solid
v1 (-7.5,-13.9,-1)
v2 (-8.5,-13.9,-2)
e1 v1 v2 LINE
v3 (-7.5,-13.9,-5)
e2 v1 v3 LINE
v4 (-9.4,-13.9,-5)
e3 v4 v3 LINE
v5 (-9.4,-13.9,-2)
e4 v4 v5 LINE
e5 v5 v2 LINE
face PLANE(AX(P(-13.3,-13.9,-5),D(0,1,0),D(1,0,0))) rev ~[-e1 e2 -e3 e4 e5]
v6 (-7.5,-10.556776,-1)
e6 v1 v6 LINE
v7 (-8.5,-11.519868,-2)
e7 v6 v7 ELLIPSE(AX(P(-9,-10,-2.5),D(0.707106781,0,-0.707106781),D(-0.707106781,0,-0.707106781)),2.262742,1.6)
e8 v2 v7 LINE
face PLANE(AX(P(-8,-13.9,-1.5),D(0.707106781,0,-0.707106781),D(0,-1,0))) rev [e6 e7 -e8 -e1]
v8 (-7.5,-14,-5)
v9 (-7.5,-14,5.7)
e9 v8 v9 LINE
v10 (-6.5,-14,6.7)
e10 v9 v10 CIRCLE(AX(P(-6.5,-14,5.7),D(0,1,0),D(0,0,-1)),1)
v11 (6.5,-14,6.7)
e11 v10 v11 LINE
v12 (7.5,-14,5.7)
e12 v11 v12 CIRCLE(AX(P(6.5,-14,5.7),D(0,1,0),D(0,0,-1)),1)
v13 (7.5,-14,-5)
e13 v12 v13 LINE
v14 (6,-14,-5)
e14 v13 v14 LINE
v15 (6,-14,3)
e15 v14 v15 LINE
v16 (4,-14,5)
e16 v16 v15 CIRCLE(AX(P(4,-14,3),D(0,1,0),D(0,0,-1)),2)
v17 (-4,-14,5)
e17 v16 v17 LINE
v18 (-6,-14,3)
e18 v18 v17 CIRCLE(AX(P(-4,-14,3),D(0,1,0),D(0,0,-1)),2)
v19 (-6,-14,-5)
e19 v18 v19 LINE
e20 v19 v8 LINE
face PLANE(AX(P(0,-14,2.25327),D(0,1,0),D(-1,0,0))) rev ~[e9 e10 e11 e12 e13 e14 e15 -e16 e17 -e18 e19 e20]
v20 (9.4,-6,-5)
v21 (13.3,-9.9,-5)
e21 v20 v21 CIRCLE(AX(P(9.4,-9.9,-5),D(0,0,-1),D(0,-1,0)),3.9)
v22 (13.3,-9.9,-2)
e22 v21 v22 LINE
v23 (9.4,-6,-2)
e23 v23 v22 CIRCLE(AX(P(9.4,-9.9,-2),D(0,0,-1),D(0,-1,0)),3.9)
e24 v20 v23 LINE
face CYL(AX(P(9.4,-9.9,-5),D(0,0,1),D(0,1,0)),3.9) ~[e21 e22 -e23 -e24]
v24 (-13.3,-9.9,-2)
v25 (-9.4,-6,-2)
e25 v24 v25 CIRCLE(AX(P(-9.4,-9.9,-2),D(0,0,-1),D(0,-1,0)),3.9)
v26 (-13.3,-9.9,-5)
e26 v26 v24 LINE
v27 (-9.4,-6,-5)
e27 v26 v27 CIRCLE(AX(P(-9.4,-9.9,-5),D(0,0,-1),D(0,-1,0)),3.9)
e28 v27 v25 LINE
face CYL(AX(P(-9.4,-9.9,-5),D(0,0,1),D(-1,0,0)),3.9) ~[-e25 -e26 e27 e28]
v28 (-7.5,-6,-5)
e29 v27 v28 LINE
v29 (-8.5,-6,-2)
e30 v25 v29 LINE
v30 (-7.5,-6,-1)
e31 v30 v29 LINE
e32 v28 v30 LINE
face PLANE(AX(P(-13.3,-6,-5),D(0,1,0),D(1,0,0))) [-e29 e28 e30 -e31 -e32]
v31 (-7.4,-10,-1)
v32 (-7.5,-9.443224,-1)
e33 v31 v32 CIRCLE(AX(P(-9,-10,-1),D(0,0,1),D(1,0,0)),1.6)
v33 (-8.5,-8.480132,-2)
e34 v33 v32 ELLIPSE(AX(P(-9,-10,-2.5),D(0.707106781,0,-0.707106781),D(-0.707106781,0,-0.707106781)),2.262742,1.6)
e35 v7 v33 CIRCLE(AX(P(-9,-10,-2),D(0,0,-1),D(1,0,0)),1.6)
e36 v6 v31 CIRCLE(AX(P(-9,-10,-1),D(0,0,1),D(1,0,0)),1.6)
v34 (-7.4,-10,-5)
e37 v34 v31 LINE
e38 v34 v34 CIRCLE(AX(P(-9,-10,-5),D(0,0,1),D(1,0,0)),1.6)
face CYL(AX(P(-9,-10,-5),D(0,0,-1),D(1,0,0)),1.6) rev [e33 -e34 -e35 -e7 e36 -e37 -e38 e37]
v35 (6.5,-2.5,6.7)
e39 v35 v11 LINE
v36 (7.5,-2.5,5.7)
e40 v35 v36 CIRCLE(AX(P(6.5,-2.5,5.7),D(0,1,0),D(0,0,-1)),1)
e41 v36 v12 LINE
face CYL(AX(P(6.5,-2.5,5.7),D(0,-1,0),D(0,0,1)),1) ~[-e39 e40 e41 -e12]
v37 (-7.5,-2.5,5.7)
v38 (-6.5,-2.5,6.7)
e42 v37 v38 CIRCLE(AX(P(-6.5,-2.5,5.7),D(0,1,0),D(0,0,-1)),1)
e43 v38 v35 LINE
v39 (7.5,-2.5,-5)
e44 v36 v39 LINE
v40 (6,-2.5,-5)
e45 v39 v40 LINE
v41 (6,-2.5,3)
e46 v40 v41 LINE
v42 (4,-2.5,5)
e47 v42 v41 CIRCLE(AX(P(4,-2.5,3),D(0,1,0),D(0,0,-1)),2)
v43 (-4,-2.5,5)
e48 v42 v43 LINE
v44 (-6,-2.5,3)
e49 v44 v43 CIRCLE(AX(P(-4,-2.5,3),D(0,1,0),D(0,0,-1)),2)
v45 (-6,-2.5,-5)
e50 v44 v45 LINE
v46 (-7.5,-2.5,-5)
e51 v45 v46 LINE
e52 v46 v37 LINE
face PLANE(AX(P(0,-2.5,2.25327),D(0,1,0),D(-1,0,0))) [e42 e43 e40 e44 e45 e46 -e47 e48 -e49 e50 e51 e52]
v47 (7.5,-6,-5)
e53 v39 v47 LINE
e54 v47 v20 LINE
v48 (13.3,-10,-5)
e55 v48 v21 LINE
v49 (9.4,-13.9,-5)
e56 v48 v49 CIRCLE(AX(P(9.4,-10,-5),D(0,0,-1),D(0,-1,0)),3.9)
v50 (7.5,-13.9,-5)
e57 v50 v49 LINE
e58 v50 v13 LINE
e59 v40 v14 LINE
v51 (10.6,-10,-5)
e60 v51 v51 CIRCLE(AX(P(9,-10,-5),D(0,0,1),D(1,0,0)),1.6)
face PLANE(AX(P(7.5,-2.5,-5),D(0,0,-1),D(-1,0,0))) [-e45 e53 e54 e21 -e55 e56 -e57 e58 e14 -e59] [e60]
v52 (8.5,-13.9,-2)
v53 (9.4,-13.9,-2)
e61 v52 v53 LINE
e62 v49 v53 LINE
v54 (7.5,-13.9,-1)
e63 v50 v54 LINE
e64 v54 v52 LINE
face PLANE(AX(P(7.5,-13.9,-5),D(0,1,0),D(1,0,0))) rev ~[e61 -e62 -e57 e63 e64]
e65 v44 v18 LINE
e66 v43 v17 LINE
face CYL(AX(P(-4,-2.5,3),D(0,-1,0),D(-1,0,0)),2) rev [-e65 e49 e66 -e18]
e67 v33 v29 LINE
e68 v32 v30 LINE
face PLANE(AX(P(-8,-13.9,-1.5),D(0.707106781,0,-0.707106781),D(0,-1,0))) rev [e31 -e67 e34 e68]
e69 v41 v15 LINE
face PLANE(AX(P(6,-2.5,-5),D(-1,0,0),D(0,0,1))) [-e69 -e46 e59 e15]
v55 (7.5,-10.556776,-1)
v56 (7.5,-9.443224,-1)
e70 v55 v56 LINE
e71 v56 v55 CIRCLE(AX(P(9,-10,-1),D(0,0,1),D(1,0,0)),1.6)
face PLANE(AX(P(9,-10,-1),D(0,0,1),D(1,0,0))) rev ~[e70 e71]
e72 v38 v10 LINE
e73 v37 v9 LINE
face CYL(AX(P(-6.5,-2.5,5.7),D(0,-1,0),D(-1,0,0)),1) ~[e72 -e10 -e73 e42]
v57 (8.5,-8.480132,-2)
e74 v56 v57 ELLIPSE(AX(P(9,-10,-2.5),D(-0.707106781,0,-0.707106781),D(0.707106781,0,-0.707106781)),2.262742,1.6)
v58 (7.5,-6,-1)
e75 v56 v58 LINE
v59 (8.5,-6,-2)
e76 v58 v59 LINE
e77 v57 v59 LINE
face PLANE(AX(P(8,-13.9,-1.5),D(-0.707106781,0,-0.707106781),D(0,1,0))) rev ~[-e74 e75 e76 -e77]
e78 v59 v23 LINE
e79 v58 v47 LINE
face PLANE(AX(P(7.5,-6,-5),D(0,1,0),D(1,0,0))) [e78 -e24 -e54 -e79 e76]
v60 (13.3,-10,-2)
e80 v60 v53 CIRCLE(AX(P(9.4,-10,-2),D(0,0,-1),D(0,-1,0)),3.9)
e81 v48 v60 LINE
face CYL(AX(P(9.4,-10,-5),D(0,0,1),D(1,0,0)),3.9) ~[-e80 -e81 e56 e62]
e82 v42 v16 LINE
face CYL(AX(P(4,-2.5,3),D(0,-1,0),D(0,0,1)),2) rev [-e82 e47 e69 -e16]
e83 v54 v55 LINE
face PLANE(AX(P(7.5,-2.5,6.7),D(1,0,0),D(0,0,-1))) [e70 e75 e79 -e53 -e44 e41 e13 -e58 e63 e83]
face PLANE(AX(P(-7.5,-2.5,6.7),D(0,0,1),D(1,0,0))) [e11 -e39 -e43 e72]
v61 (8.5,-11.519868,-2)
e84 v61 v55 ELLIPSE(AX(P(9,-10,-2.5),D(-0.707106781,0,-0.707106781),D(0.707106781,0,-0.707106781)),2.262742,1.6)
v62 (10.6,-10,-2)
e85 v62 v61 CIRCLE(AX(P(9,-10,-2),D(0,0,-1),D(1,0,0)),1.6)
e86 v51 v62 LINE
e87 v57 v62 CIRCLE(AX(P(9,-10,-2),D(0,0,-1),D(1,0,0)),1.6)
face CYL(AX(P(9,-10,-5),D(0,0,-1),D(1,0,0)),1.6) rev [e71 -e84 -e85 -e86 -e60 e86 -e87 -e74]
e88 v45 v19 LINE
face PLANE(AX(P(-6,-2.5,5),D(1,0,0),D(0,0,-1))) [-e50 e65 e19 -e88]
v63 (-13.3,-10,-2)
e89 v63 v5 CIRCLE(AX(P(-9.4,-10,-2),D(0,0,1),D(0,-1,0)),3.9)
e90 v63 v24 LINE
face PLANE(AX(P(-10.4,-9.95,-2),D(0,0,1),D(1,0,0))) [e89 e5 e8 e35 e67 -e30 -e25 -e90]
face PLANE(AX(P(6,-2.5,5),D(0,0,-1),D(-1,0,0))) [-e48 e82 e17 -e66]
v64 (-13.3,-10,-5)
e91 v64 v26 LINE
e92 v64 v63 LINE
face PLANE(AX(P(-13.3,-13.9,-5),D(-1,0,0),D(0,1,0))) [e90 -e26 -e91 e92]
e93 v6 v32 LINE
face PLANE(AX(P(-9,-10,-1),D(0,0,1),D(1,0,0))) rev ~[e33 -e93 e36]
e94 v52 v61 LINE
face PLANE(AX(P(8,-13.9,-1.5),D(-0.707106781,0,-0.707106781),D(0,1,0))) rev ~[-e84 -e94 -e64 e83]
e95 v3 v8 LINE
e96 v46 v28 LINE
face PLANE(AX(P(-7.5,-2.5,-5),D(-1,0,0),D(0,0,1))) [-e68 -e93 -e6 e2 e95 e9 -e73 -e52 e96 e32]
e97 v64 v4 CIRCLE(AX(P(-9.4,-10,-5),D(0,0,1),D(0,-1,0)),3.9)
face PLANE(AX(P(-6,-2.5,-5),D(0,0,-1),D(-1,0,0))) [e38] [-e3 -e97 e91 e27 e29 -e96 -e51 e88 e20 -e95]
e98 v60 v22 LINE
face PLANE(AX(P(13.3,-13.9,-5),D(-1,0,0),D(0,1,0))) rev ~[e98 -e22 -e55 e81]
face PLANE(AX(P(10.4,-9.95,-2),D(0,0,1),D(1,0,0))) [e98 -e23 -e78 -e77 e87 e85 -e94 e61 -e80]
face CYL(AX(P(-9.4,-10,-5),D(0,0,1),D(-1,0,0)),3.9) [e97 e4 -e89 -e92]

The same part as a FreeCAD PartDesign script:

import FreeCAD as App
import Part
import Sketcher

V = App.Vector


def edges_at(feature, points):
    """Names of the edges that pass closest to the given points."""
    edges = feature.Shape.Edges
    near = lambda p: min(range(len(edges)), key=lambda i: edges[i].distToShape(Part.Vertex(*p))[0])
    return sorted({f"Edge{near(p) + 1}" for p in points})


def add_polygon(sketch, points):
    """Adds a closed chain of lines whose ends are joined by coincident constraints."""
    first, n = sketch.GeometryCount, len(points)
    for a, b in zip(points, points[1:] + points[:1]):
        sketch.addGeometry(Part.LineSegment(App.Vector(*a, 0), App.Vector(*b, 0)), False)
    for i in range(n):
        sketch.addConstraint(Sketcher.Constraint("Coincident", first + i, 2, first + (i + 1) % n, 1))

doc = App.newDocument("Part")
body = doc.addObject("PartDesign::Body", "Body")

sketch1 = doc.addObject("Sketcher::SketchObject", "Sketch")
body.addObject(sketch1)
sketch1.AttachmentSupport = (doc.XZ_Plane, [""])
sketch1.MapMode = "FlatFace"
sketch1.AttachmentOffset = App.Placement(V(0, 0, 2.5), App.Rotation())
add_polygon(sketch1, [(-7.5, 6.7), (-7.5, -5), (-6, -5), (-6, 5), (6, 5), (6, -5), (7.5, -5), (7.5, 6.7)])
sketch1.addConstraint(Sketcher.Constraint("Vertical", 0))
sketch1.addConstraint(Sketcher.Constraint("Horizontal", 1))
sketch1.addConstraint(Sketcher.Constraint("Vertical", 2))
sketch1.addConstraint(Sketcher.Constraint("Horizontal", 3))
sketch1.addConstraint(Sketcher.Constraint("Vertical", 4))
sketch1.addConstraint(Sketcher.Constraint("Horizontal", 5))
sketch1.addConstraint(Sketcher.Constraint("Vertical", 6))
sketch1.addConstraint(Sketcher.Constraint("Horizontal", 7))
sketch1.addConstraint(Sketcher.Constraint("Symmetric", 1, 2, 3, 2, -1, 1))
sketch1.addConstraint(Sketcher.Constraint("Symmetric", 0, 2, 5, 2, -2))
sketch1.addConstraint(Sketcher.Constraint("DistanceX", 3, 1, 3, 2, 12.0))
sketch1.addConstraint(Sketcher.Constraint("DistanceX", 7, 2, 7, 1, 15.0))
sketch1.addConstraint(Sketcher.Constraint("DistanceY", 2, 1, 2, 2, 10.0))
sketch1.addConstraint(Sketcher.Constraint("DistanceY", 0, 2, 0, 1, 11.7))
pad1 = doc.addObject("PartDesign::Pad", "Pad")
body.addObject(pad1)
pad1.Profile = sketch1
pad1.Length = 11.5
doc.recompute()

fillet = doc.addObject("PartDesign::Fillet", "Fillet")
body.addObject(fillet)
fillet.Base = (pad1, edges_at(pad1, [(-7.5, -8.25, 6.7), (7.5, -8.25, 6.7)]))
fillet.Radius = 1
doc.recompute()

fillet2 = doc.addObject("PartDesign::Fillet", "Fillet001")
body.addObject(fillet2)
fillet2.Base = (fillet, edges_at(fillet, [(6, -8.25, 5), (-6, -8.25, 5)]))
fillet2.Radius = 2

sketch2 = doc.addObject("Sketcher::SketchObject", "Sketch001")
body.addObject(sketch2)
sketch2.AttachmentSupport = (doc.XY_Plane, [""])
sketch2.MapMode = "FlatFace"
sketch2.AttachmentOffset = App.Placement(V(0, 0, -5), App.Rotation())
add_polygon(sketch2, [(7.5, -6), (7.5, -13.9), (13.3, -13.9), (13.3, -6)])
add_polygon(sketch2, [(-13.3, -6), (-13.3, -13.9), (-7.5, -13.9), (-7.5, -6)])
sketch2.addConstraint(Sketcher.Constraint("Vertical", 0))
sketch2.addConstraint(Sketcher.Constraint("Horizontal", 1))
sketch2.addConstraint(Sketcher.Constraint("Vertical", 2))
sketch2.addConstraint(Sketcher.Constraint("Horizontal", 3))
sketch2.addConstraint(Sketcher.Constraint("Vertical", 4))
sketch2.addConstraint(Sketcher.Constraint("Horizontal", 5))
sketch2.addConstraint(Sketcher.Constraint("Vertical", 6))
sketch2.addConstraint(Sketcher.Constraint("Horizontal", 7))
sketch2.addConstraint(Sketcher.Constraint("Symmetric", 1, 2, 4, 2, -2))
sketch2.addConstraint(Sketcher.Constraint("Symmetric", 3, 2, 6, 2, -2))
sketch2.addConstraint(Sketcher.Constraint("DistanceX", 1, 1, 1, 2, 5.8))
sketch2.addConstraint(Sketcher.Constraint("DistanceY", 0, 2, 0, 1, 7.9))
sketch2.addConstraint(Sketcher.Constraint("DistanceY", 2, 2, -1, 1, 6.0))
sketch2.addConstraint(Sketcher.Constraint("DistanceX", 5, 2, 0, 2, 15.0))
pad2 = doc.addObject("PartDesign::Pad", "Pad001")
body.addObject(pad2)
pad2.Profile = sketch2
pad2.Length = 3
doc.recompute()

chamfer = doc.addObject("PartDesign::Chamfer", "Chamfer")
body.addObject(chamfer)
chamfer.Base = (pad2, edges_at(pad2, [(7.5, -9.95, -2), (-7.5, -9.95, -2)]))
chamfer.Size = 1
doc.recompute()

fillet3 = doc.addObject("PartDesign::Fillet", "Fillet002")
body.addObject(fillet3)
fillet3.Base = (chamfer, edges_at(chamfer, [
    (13.3, -6, -3.5),
    (13.3, -13.9, -3.5),
    (-13.3, -13.9, -3.5),
    (-13.3, -6, -3.5),
]))
fillet3.Radius = 3.9

sketch3 = doc.addObject("Sketcher::SketchObject", "Sketch002")
body.addObject(sketch3)
sketch3.AttachmentSupport = (doc.XY_Plane, [""])
sketch3.MapMode = "FlatFace"
sketch3.AttachmentOffset = App.Placement(V(0, 0, -5), App.Rotation())
sketch3.addGeometry(Part.Circle(V(-9, -10, 0), V(0, 0, 1), 1.6), False)
sketch3.addGeometry(Part.Circle(V(9, -10, 0), V(0, 0, 1), 1.6), False)
sketch3.addConstraint(Sketcher.Constraint("Equal", 0, 1))
sketch3.addConstraint(Sketcher.Constraint("Symmetric", 0, 3, 1, 3, -2))
sketch3.addConstraint(Sketcher.Constraint("Diameter", 0, 3.2))
sketch3.addConstraint(Sketcher.Constraint("DistanceX", 0, 3, -1, 1, 9.0))
sketch3.addConstraint(Sketcher.Constraint("DistanceY", 0, 3, -1, 1, 10.0))
pocket1 = doc.addObject("PartDesign::Pocket", "Pocket")
body.addObject(pocket1)
pocket1.Profile = sketch3
pocket1.Length = 4
pocket1.Reversed = True

doc.recompute()
